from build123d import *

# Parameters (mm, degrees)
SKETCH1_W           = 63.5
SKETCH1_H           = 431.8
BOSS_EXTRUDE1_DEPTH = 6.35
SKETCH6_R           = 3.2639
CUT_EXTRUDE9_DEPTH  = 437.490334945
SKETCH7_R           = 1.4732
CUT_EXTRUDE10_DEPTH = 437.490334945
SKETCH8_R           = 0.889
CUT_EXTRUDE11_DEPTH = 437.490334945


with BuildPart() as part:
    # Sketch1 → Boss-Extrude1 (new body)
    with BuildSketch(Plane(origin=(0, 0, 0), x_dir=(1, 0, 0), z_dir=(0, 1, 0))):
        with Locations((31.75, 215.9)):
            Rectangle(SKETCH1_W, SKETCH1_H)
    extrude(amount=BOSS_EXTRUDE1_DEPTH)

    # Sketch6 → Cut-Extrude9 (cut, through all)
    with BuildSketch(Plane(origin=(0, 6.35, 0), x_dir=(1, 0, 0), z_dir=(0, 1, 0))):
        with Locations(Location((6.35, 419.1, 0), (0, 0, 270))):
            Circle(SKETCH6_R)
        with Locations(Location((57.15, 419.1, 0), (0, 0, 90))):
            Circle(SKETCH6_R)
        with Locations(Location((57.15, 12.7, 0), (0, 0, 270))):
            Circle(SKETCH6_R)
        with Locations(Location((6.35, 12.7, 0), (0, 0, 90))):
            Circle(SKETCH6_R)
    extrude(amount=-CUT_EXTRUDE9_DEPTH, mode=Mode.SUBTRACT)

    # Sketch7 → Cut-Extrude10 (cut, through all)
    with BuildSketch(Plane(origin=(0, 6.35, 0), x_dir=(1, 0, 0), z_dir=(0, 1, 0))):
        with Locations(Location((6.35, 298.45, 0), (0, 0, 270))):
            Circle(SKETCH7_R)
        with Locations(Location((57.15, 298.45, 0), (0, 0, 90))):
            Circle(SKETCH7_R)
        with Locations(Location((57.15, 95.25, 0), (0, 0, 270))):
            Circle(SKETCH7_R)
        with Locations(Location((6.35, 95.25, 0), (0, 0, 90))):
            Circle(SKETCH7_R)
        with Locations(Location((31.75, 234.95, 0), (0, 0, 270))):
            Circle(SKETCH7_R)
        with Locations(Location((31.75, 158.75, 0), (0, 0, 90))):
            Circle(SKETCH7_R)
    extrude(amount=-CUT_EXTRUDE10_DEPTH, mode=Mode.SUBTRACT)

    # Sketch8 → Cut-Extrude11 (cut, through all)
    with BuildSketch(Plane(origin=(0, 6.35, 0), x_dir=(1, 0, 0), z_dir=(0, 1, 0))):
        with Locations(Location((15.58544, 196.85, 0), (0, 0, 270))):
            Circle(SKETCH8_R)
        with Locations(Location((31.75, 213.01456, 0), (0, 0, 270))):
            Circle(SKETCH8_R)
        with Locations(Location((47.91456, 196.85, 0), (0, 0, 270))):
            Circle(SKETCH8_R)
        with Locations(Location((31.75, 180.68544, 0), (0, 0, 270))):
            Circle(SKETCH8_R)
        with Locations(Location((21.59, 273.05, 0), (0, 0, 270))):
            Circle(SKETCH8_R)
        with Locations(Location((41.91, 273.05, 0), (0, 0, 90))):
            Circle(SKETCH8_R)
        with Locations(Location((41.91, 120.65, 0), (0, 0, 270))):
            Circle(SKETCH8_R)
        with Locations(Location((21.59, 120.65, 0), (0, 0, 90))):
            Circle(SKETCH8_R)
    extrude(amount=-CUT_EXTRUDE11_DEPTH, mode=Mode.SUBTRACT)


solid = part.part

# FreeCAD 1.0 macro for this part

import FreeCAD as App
import Part
import Sketcher
from FreeCAD import Vector
Q = App.Units.Quantity

doc = App.newDocument("Part")
body = doc.addObject("PartDesign::Body", "Body")

sketch1 = doc.addObject("Sketcher::SketchObject", "Sketch")
body.addObject(sketch1)
sketch1.AttachmentSupport = (doc.XZ_Plane, [""])
sketch1.MapMode = "FlatFace"
sketch1.addGeometry(Part.LineSegment(Vector(0, -431.8, 0), Vector(0, 0, 0)), False)
sketch1.addGeometry(Part.LineSegment(Vector(0, 0, 0), Vector(63.5, 0, 0)), False)
sketch1.addGeometry(Part.LineSegment(Vector(63.5, 0, 0), Vector(63.5, -431.8, 0)), False)
sketch1.addGeometry(Part.LineSegment(Vector(63.5, -431.8, 0), Vector(0, -431.8, 0)), False)
sketch1.addConstraint(Sketcher.Constraint("Coincident", 0, 2, 1, 1))
sketch1.addConstraint(Sketcher.Constraint("Coincident", 1, 2, 2, 1))
sketch1.addConstraint(Sketcher.Constraint("Coincident", 2, 2, 3, 1))
sketch1.addConstraint(Sketcher.Constraint("Coincident", 3, 2, 0, 1))
sketch1.addConstraint(Sketcher.Constraint("Vertical", 0))
sketch1.addConstraint(Sketcher.Constraint("Horizontal", 1))
sketch1.addConstraint(Sketcher.Constraint("Vertical", 2))
sketch1.addConstraint(Sketcher.Constraint("Horizontal", 3))
sketch1.addConstraint(Sketcher.Constraint("Coincident", 0, 2, -1, 1))
sketch1.addConstraint(Sketcher.Constraint("DistanceY", 0, 1, 0, 2, Q("17 in")))
sketch1.addConstraint(Sketcher.Constraint("DistanceX", 1, 1, 1, 2, Q("2.5 in")))
pad1 = doc.addObject("PartDesign::Pad", "Pad")
body.addObject(pad1)
pad1.Profile = sketch1
pad1.Length = Q("0.25 in")
pad1.Reversed = True

sketch2 = doc.addObject("Sketcher::SketchObject", "Sketch001")
body.addObject(sketch2)
sketch2.AttachmentSupport = (doc.XZ_Plane, [""])
sketch2.MapMode = "FlatFace"
sketch2.AttachmentOffset = App.Placement(Vector(0, 0, -0.25 * 25.4), App.Rotation())
sketch2.addGeometry(Part.Circle(Vector(6.35, -419.1, 0), Vector(0, 0, 1), 3.2639), False)
sketch2.addGeometry(Part.Circle(Vector(57.15, -419.1, 0), Vector(0, 0, 1), 3.2639), False)
sketch2.addGeometry(Part.Circle(Vector(57.15, -12.7, 0), Vector(0, 0, 1), 3.2639), False)
sketch2.addGeometry(Part.Circle(Vector(6.35, -12.7, 0), Vector(0, 0, 1), 3.2639), False)
sketch2.addConstraint(Sketcher.Constraint("Equal", 0, 1))
sketch2.addConstraint(Sketcher.Constraint("Equal", 1, 2))
sketch2.addConstraint(Sketcher.Constraint("Equal", 2, 3))
sketch2.addConstraint(Sketcher.Constraint("Horizontal", 0, 3, 1, 3))
sketch2.addConstraint(Sketcher.Constraint("Horizontal", 2, 3, 3, 3))
sketch2.addConstraint(Sketcher.Constraint("Vertical", 1, 3, 2, 3))
sketch2.addConstraint(Sketcher.Constraint("Vertical", 0, 3, 3, 3))
sketch2.addConstraint(Sketcher.Constraint("Diameter", 0, Q("0.257 in")))
sketch2.addConstraint(Sketcher.Constraint("DistanceX", 0, 3, 1, 3, Q("2 in")))
sketch2.addConstraint(Sketcher.Constraint("DistanceY", 1, 3, 2, 3, Q("16 in")))
sketch2.addConstraint(Sketcher.Constraint("DistanceY", 0, 3, -1, 1, Q("16.5 in")))
sketch2.addConstraint(Sketcher.Constraint("DistanceX", -1, 1, 0, 3, Q("0.25 in")))
pocket1 = doc.addObject("PartDesign::Pocket", "Pocket")
body.addObject(pocket1)
pocket1.Profile = sketch2
pocket1.Type = "ThroughAll"
pocket1.Reversed = True

sketch3 = doc.addObject("Sketcher::SketchObject", "Sketch002")
body.addObject(sketch3)
sketch3.AttachmentSupport = (doc.XZ_Plane, [""])
sketch3.MapMode = "FlatFace"
sketch3.AttachmentOffset = App.Placement(Vector(0, 0, -0.25 * 25.4), App.Rotation())
sketch3.addGeometry(Part.Circle(Vector(6.35, -298.45, 0), Vector(0, 0, 1), 1.4732), False)
sketch3.addGeometry(Part.Circle(Vector(57.15, -298.45, 0), Vector(0, 0, 1), 1.4732), False)
sketch3.addGeometry(Part.Circle(Vector(57.15, -95.25, 0), Vector(0, 0, 1), 1.4732), False)
sketch3.addGeometry(Part.Circle(Vector(6.35, -95.25, 0), Vector(0, 0, 1), 1.4732), False)
sketch3.addGeometry(Part.Circle(Vector(31.75, -234.95, 0), Vector(0, 0, 1), 1.4732), False)
sketch3.addGeometry(Part.Circle(Vector(31.75, -158.75, 0), Vector(0, 0, 1), 1.4732), False)
sketch3.addConstraint(Sketcher.Constraint("Equal", 0, 1))
sketch3.addConstraint(Sketcher.Constraint("Equal", 1, 2))
sketch3.addConstraint(Sketcher.Constraint("Equal", 2, 3))
sketch3.addConstraint(Sketcher.Constraint("Equal", 3, 4))
sketch3.addConstraint(Sketcher.Constraint("Equal", 4, 5))
sketch3.addConstraint(Sketcher.Constraint("Horizontal", 0, 3, 1, 3))
sketch3.addConstraint(Sketcher.Constraint("Horizontal", 2, 3, 3, 3))
sketch3.addConstraint(Sketcher.Constraint("Vertical", 1, 3, 2, 3))
sketch3.addConstraint(Sketcher.Constraint("Vertical", 0, 3, 3, 3))
sketch3.addConstraint(Sketcher.Constraint("Vertical", 4, 3, 5, 3))
sketch3.addConstraint(Sketcher.Constraint("Diameter", 0, Q("0.116 in")))
sketch3.addConstraint(Sketcher.Constraint("DistanceX", 0, 3, 1, 3, Q("2 in")))
sketch3.addConstraint(Sketcher.Constraint("DistanceY", 1, 3, 2, 3, Q("8 in")))
sketch3.addConstraint(Sketcher.Constraint("DistanceX", 0, 3, 4, 3, Q("1 in")))
sketch3.addConstraint(Sketcher.Constraint("DistanceY", 4, 3, 5, 3, Q("3 in")))
sketch3.addConstraint(Sketcher.Constraint("DistanceY", 0, 3, 4, 3, Q("2.5 in")))
sketch3.addConstraint(Sketcher.Constraint("DistanceX", -1, 1, 0, 3, Q("0.25 in")))
sketch3.addConstraint(Sketcher.Constraint("DistanceY", 0, 3, -1, 1, Q("11.75 in")))
pocket2 = doc.addObject("PartDesign::Pocket", "Pocket001")
body.addObject(pocket2)
pocket2.Profile = sketch3
pocket2.Type = "ThroughAll"
pocket2.Reversed = True

sketch4 = doc.addObject("Sketcher::SketchObject", "Sketch003")
body.addObject(sketch4)
sketch4.AttachmentSupport = (doc.XZ_Plane, [""])
sketch4.MapMode = "FlatFace"
sketch4.AttachmentOffset = App.Placement(Vector(0, 0, -0.25 * 25.4), App.Rotation())
sketch4.addGeometry(Part.Circle(Vector(15.58544, -196.85, 0), Vector(0, 0, 1), 0.889), False)
sketch4.addGeometry(Part.Circle(Vector(31.75, -213.01456, 0), Vector(0, 0, 1), 0.889), False)
sketch4.addGeometry(Part.Circle(Vector(47.91456, -196.85, 0), Vector(0, 0, 1), 0.889), False)
sketch4.addGeometry(Part.Circle(Vector(31.75, -180.68544, 0), Vector(0, 0, 1), 0.889), False)
sketch4.addGeometry(Part.Circle(Vector(21.59, -273.05, 0), Vector(0, 0, 1), 0.889), False)
sketch4.addGeometry(Part.Circle(Vector(41.91, -273.05, 0), Vector(0, 0, 1), 0.889), False)
sketch4.addGeometry(Part.Circle(Vector(41.91, -120.65, 0), Vector(0, 0, 1), 0.889), False)
sketch4.addGeometry(Part.Circle(Vector(21.59, -120.65, 0), Vector(0, 0, 1), 0.889), False)
sketch4.addConstraint(Sketcher.Constraint("Equal", 0, 1))
sketch4.addConstraint(Sketcher.Constraint("Equal", 1, 2))
sketch4.addConstraint(Sketcher.Constraint("Equal", 2, 3))
sketch4.addConstraint(Sketcher.Constraint("Equal", 3, 4))
sketch4.addConstraint(Sketcher.Constraint("Equal", 4, 5))
sketch4.addConstraint(Sketcher.Constraint("Equal", 5, 6))
sketch4.addConstraint(Sketcher.Constraint("Equal", 6, 7))
sketch4.addConstraint(Sketcher.Constraint("Horizontal", 0, 3, 2, 3))
sketch4.addConstraint(Sketcher.Constraint("Horizontal", 4, 3, 5, 3))
sketch4.addConstraint(Sketcher.Constraint("Horizontal", 6, 3, 7, 3))
sketch4.addConstraint(Sketcher.Constraint("Vertical", 1, 3, 3, 3))
sketch4.addConstraint(Sketcher.Constraint("Vertical", 5, 3, 6, 3))
sketch4.addConstraint(Sketcher.Constraint("Vertical", 4, 3, 7, 3))
sketch4.addConstraint(Sketcher.Constraint("Diameter", 0, Q("0.07 in")))
sketch4.addConstraint(Sketcher.Constraint("DistanceY", 4, 3, 0, 3, Q("3 in")))
sketch4.addConstraint(Sketcher.Constraint("DistanceY", 2, 3, 6, 3, Q("3 in")))
sketch4.addConstraint(Sketcher.Constraint("DistanceX", 4, 3, 1, 3, Q("0.4 in")))
sketch4.addConstraint(Sketcher.Constraint("DistanceX", 4, 3, 5, 3, Q("0.8 in")))
sketch4.addConstraint(Sketcher.Constraint("DistanceY", 0, 3, -1, 1, Q("7.75 in")))
sketch4.addConstraint(Sketcher.Constraint("DistanceX", -1, 1, 1, 3, Q("1.25 in")))
sketch4.addConstraint(Sketcher.Constraint("DistanceX", -1, 1, 0, 3, Q("0.6136 in")))
sketch4.addConstraint(Sketcher.Constraint("DistanceY", 1, 3, -1, 1, Q("8.3864 in")))
sketch4.addConstraint(Sketcher.Constraint("DistanceX", -1, 1, 2, 3, Q("1.8864 in")))
sketch4.addConstraint(Sketcher.Constraint("DistanceY", 3, 3, -1, 1, Q("7.1136 in")))
pocket3 = doc.addObject("PartDesign::Pocket", "Pocket002")
body.addObject(pocket3)
pocket3.Profile = sketch4
pocket3.Type = "ThroughAll"
pocket3.Reversed = True

doc.recompute()
